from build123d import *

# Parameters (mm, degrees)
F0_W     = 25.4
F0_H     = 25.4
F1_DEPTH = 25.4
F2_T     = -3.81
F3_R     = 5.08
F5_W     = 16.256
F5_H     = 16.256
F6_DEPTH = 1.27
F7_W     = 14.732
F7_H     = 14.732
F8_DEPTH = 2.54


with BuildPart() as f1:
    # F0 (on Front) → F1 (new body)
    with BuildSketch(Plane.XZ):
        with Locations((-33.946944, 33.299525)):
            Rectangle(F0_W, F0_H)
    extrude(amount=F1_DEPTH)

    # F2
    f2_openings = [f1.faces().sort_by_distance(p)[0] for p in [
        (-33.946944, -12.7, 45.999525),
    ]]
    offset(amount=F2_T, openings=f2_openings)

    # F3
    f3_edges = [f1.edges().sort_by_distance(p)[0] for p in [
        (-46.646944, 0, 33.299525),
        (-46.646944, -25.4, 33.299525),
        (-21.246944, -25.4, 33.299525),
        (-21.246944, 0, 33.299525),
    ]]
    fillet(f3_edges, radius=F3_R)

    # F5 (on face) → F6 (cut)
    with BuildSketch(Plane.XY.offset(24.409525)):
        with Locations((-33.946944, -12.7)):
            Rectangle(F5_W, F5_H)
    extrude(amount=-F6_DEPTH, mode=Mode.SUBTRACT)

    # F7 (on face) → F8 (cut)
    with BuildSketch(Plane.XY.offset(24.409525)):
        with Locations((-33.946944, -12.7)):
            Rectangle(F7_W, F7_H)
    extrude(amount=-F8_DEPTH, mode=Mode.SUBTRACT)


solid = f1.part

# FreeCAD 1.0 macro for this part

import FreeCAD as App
import Part
import Sketcher
Q = App.Units.Quantity


def edges_at(feature, points):
    """Names of the edges that pass closest to the given points."""
    edges = feature.Shape.Edges
    near = lambda p: min(range(len(edges)), key=lambda i: edges[i].distToShape(Part.Vertex(*p))[0])
    return sorted({f"Edge{near(p) + 1}" for p in points})


def faces_at(feature, points):
    """Names of the faces that lie closest to the given points."""
    faces = feature.Shape.Faces
    near = lambda p: min(range(len(faces)), key=lambda i: faces[i].distToShape(Part.Vertex(*p))[0])
    return sorted({f"Face{near(p) + 1}" for p in points})


def add_polygon(sketch, points):
    """Adds a closed chain of lines whose ends are joined by coincident constraints."""
    first, n = sketch.GeometryCount, len(points)
    for a, b in zip(points, points[1:] + points[:1]):
        sketch.addGeometry(Part.LineSegment(App.Vector(*a, 0), App.Vector(*b, 0)), False)
    for i in range(n):
        sketch.addConstraint(Sketcher.Constraint("Coincident", first + i, 2, first + (i + 1) % n, 1))

doc = App.newDocument("Part")
body = doc.addObject("PartDesign::Body", "Body")

sketch1 = body.newObject("Sketcher::SketchObject", "Sketch")
sketch1.AttachmentSupport = (doc.getObject("XZ_Plane"), [""])
sketch1.MapMode = "FlatFace"
add_polygon(sketch1, [(-47, 46), (-47, 21), (-21, 21), (-21, 46)])
sketch1.addConstraint(Sketcher.Constraint("Vertical", 0))
sketch1.addConstraint(Sketcher.Constraint("Horizontal", 1))
sketch1.addConstraint(Sketcher.Constraint("Vertical", 2))
sketch1.addConstraint(Sketcher.Constraint("Horizontal", 3))
sketch1.addConstraint(Sketcher.Constraint("Equal", 3, 0))
sketch1.addConstraint(Sketcher.Constraint("DistanceX", 1, 1, 1, 2, Q("1 in")))
sketch1.addConstraint(Sketcher.Constraint("DistanceX", 0, 2, -1, 1, Q("46.646944 mm")))
sketch1.addConstraint(Sketcher.Constraint("DistanceY", -1, 1, 0, 2, Q("20.599525 mm")))
pad1 = body.newObject("PartDesign::Pad", "Pad")
pad1.Profile = sketch1
pad1.Length = Q("1 in")
doc.recompute()

thickness = body.newObject("PartDesign::Thickness", "Thickness")
thickness.Base = (pad1, faces_at(pad1, [(-33.947, -12.7, 46)]))
thickness.Value = Q("0.15 in")
thickness.Reversed = True
thickness.Join = "Arc"
doc.recompute()

fillet = body.newObject("PartDesign::Fillet", "Fillet")
fillet.Base = (thickness, edges_at(thickness, [
    (-46.647, 0, 33.3),
    (-46.647, -25.4, 33.3),
    (-21.247, -25.4, 33.3),
    (-21.247, 0, 33.3),
]))
fillet.Radius = Q("0.2 in")

sketch2 = body.newObject("Sketcher::SketchObject", "Sketch001")
sketch2.AttachmentSupport = (doc.getObject("XY_Plane"), [""])
sketch2.MapMode = "FlatFace"
sketch2.AttachmentOffset = App.Placement(App.Vector(0, 0, 24.409525), App.Rotation())
add_polygon(sketch2, [(-42, -5), (-42, -21), (-26, -21), (-26, -5)])
sketch2.addConstraint(Sketcher.Constraint("Vertical", 0))
sketch2.addConstraint(Sketcher.Constraint("Horizontal", 1))
sketch2.addConstraint(Sketcher.Constraint("Vertical", 2))
sketch2.addConstraint(Sketcher.Constraint("Horizontal", 3))
sketch2.addConstraint(Sketcher.Constraint("Equal", 3, 0))
sketch2.addConstraint(Sketcher.Constraint("DistanceX", 1, 1, 1, 2, Q("0.64 in")))
sketch2.addConstraint(Sketcher.Constraint("DistanceY", 0, 2, -1, 1, Q("0.82 in")))
sketch2.addConstraint(Sketcher.Constraint("DistanceX", 0, 2, -1, 1, Q("42.074944 mm")))
pocket1 = body.newObject("PartDesign::Pocket", "Pocket")
pocket1.Profile = sketch2
pocket1.Length = Q("0.05 in")

sketch3 = body.newObject("Sketcher::SketchObject", "Sketch002")
sketch3.AttachmentSupport = (doc.getObject("XY_Plane"), [""])
sketch3.MapMode = "FlatFace"
sketch3.AttachmentOffset = App.Placement(App.Vector(0, 0, 24.409525), App.Rotation())
add_polygon(sketch3, [(-41, -5), (-41, -20), (-27, -20), (-27, -5)])
sketch3.addConstraint(Sketcher.Constraint("Vertical", 0))
sketch3.addConstraint(Sketcher.Constraint("Horizontal", 1))
sketch3.addConstraint(Sketcher.Constraint("Vertical", 2))
sketch3.addConstraint(Sketcher.Constraint("Horizontal", 3))
sketch3.addConstraint(Sketcher.Constraint("Equal", 3, 0))
sketch3.addConstraint(Sketcher.Constraint("DistanceX", 1, 1, 1, 2, Q("0.58 in")))
sketch3.addConstraint(Sketcher.Constraint("DistanceY", 0, 2, -1, 1, Q("0.79 in")))
sketch3.addConstraint(Sketcher.Constraint("DistanceX", 0, 2, -1, 1, Q("41.312944 mm")))
pocket2 = body.newObject("PartDesign::Pocket", "Pocket001")
pocket2.Profile = sketch3
pocket2.Length = Q("0.1 in")

doc.recompute()
